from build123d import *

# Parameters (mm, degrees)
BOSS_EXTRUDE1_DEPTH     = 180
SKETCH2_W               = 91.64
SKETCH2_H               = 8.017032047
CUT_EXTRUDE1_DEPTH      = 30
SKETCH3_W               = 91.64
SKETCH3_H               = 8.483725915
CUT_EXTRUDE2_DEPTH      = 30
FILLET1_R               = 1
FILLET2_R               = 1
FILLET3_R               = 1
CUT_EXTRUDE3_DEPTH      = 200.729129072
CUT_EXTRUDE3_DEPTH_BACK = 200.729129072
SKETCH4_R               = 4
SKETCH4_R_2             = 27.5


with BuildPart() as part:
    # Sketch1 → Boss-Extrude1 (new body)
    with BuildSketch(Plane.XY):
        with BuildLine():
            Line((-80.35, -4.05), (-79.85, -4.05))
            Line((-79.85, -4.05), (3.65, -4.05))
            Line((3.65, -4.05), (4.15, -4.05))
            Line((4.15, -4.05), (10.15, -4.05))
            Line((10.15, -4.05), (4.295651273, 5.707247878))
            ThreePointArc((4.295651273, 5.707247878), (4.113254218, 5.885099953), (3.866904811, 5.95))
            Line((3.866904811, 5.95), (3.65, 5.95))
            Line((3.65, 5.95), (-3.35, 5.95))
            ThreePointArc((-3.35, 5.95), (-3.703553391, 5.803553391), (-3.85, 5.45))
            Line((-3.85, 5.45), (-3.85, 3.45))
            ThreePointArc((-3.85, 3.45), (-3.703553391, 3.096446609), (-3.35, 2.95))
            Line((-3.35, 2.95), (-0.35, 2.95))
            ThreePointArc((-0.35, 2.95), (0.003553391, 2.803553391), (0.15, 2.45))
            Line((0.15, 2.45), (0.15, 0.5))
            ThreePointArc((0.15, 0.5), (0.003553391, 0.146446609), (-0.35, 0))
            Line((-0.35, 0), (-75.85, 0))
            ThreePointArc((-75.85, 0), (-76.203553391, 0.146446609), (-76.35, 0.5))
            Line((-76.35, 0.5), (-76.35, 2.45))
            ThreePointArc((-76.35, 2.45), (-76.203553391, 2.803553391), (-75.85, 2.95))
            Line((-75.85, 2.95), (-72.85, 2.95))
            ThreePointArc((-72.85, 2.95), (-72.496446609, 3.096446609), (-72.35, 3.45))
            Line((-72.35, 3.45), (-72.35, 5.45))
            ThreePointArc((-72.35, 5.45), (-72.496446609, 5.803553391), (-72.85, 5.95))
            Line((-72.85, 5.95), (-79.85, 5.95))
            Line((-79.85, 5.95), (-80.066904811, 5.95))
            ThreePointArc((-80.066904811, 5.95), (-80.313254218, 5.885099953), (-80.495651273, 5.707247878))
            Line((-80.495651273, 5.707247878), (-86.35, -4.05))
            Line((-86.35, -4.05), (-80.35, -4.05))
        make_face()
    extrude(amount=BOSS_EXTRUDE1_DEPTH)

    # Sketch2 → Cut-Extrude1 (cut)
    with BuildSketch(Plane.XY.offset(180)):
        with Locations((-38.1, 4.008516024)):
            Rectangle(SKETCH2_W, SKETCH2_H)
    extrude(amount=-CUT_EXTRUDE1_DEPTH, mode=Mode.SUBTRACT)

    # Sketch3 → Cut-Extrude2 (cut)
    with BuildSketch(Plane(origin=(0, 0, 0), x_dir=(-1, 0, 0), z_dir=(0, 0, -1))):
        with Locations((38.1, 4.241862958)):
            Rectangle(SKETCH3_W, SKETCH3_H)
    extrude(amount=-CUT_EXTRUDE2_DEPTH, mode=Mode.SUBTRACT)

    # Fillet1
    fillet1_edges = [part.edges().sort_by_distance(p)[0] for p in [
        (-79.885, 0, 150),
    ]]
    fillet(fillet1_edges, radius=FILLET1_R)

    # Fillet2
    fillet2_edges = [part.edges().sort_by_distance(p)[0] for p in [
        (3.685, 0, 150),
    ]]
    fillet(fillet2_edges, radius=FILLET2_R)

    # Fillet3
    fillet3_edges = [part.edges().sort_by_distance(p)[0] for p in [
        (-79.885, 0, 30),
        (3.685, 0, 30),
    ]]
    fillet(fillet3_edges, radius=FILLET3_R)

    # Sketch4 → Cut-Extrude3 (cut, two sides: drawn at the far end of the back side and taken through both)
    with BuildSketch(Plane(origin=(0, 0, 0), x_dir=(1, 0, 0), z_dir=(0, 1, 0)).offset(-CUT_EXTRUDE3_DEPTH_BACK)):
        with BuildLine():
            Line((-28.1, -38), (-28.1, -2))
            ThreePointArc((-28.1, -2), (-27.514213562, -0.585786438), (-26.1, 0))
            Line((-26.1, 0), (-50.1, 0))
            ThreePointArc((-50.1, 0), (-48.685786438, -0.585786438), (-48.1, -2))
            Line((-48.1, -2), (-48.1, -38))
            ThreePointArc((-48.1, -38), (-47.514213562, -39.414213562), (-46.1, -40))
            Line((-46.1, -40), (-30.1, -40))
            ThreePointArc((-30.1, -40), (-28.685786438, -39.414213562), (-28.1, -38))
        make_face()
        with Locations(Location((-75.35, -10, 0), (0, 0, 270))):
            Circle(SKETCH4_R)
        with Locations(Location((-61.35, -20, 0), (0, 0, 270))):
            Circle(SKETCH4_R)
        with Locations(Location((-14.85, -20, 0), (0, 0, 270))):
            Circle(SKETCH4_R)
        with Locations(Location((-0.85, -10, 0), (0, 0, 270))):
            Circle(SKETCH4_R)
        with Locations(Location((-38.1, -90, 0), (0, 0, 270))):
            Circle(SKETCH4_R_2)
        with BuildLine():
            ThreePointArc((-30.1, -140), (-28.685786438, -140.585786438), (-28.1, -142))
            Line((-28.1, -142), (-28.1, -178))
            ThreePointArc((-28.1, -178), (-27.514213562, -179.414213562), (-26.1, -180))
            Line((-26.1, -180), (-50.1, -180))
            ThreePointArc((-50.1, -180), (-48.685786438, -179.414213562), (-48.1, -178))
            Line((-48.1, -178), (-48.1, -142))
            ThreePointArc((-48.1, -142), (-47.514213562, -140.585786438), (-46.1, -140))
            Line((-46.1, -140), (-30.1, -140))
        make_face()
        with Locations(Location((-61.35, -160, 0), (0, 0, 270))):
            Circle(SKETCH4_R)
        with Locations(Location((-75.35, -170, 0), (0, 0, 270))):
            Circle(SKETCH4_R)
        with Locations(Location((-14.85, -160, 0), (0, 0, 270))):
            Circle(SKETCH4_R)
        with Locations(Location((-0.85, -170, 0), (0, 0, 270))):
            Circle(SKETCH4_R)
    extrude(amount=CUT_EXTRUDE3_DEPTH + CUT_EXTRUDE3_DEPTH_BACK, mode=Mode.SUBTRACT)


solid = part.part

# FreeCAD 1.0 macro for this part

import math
import FreeCAD as App
import Part
import Sketcher
from FreeCAD import Vector


def edges_at(feature, points):
    """Names of the edges that pass closest to the given points."""
    edges = feature.Shape.Edges
    near = lambda p: min(range(len(edges)), key=lambda i: edges[i].distToShape(Part.Vertex(*p))[0])
    return sorted({f"Edge{near(p) + 1}" for p in points})

doc = App.newDocument("Part")
body = doc.addObject("PartDesign::Body", "Body")

sketch1 = body.newObject("Sketcher::SketchObject", "Sketch")
sketch1.AttachmentSupport = (doc.getObject("XY_Plane"), [""])
sketch1.MapMode = "FlatFace"
sketch1.addGeometry(Part.LineSegment(Vector(10.15, -4.05, 0), Vector(4.3, 5.71, 0)), False)
sketch1.addGeometry(Part.ArcOfCircle(Part.Circle(Vector(3.87, 5.45, 0), Vector(0, 0, 1), 0.5), math.radians(31), math.radians(90)), False)
sketch1.addGeometry(Part.LineSegment(Vector(3.87, 5.95, 0), Vector(-3.35, 5.95, 0)), False)
sketch1.addGeometry(Part.ArcOfCircle(Part.Circle(Vector(-3.35, 5.45, 0), Vector(0, 0, 1), 0.5), math.radians(90), math.radians(180)), False)
sketch1.addGeometry(Part.LineSegment(Vector(-3.85, 5.45, 0), Vector(-3.85, 3.45, 0)), False)
sketch1.addGeometry(Part.ArcOfCircle(Part.Circle(Vector(-3.35, 3.45, 0), Vector(0, 0, 1), 0.5), math.radians(180), math.radians(270)), False)
sketch1.addGeometry(Part.LineSegment(Vector(-3.35, 2.95, 0), Vector(-0.35, 2.95, 0)), False)
sketch1.addGeometry(Part.ArcOfCircle(Part.Circle(Vector(-0.35, 2.45, 0), Vector(0, 0, 1), 0.5), math.radians(0), math.radians(90)), False)
sketch1.addGeometry(Part.LineSegment(Vector(0.15, 2.45, 0), Vector(0.15, 0.5, 0)), False)
sketch1.addGeometry(Part.ArcOfCircle(Part.Circle(Vector(-0.35, 0.5, 0), Vector(0, 0, 1), 0.5), math.radians(-90), math.radians(0)), False)
sketch1.addGeometry(Part.LineSegment(Vector(-0.35, 0, 0), Vector(-75.85, 0, 0)), False)
sketch1.addGeometry(Part.ArcOfCircle(Part.Circle(Vector(-75.85, 0.5, 0), Vector(0, 0, 1), 0.5), math.radians(180), math.radians(270)), False)
sketch1.addGeometry(Part.LineSegment(Vector(-76.35, 0.5, 0), Vector(-76.35, 2.45, 0)), False)
sketch1.addGeometry(Part.ArcOfCircle(Part.Circle(Vector(-75.85, 2.45, 0), Vector(0, 0, 1), 0.5), math.radians(90), math.radians(180)), False)
sketch1.addGeometry(Part.LineSegment(Vector(-75.85, 2.95, 0), Vector(-72.85, 2.95, 0)), False)
sketch1.addGeometry(Part.ArcOfCircle(Part.Circle(Vector(-72.85, 3.45, 0), Vector(0, 0, 1), 0.5), math.radians(-90), math.radians(0)), False)
sketch1.addGeometry(Part.LineSegment(Vector(-72.35, 3.45, 0), Vector(-72.35, 5.45, 0)), False)
sketch1.addGeometry(Part.ArcOfCircle(Part.Circle(Vector(-72.85, 5.45, 0), Vector(0, 0, 1), 0.5), math.radians(0), math.radians(90)), False)
sketch1.addGeometry(Part.LineSegment(Vector(-72.85, 5.95, 0), Vector(-80.07, 5.95, 0)), False)
sketch1.addGeometry(Part.ArcOfCircle(Part.Circle(Vector(-80.07, 5.45, 0), Vector(0, 0, 1), 0.5), math.radians(90), math.radians(149)), False)
sketch1.addGeometry(Part.LineSegment(Vector(-80.5, 5.71, 0), Vector(-86.35, -4.05, 0)), False)
sketch1.addGeometry(Part.LineSegment(Vector(-86.35, -4.05, 0), Vector(10.15, -4.05, 0)), False)
sketch1.addConstraint(Sketcher.Constraint("Tangent", 0, 2, 1, 1))
sketch1.addConstraint(Sketcher.Constraint("Tangent", 1, 2, 2, 1))
sketch1.addConstraint(Sketcher.Constraint("Tangent", 2, 2, 3, 1))
sketch1.addConstraint(Sketcher.Constraint("Tangent", 3, 2, 4, 1))
sketch1.addConstraint(Sketcher.Constraint("Tangent", 4, 2, 5, 1))
sketch1.addConstraint(Sketcher.Constraint("Tangent", 5, 2, 6, 1))
sketch1.addConstraint(Sketcher.Constraint("Tangent", 6, 2, 7, 2))
sketch1.addConstraint(Sketcher.Constraint("Tangent", 7, 1, 8, 1))
sketch1.addConstraint(Sketcher.Constraint("Tangent", 8, 2, 9, 2))
sketch1.addConstraint(Sketcher.Constraint("Tangent", 9, 1, 10, 1))
sketch1.addConstraint(Sketcher.Constraint("Tangent", 10, 2, 11, 2))
sketch1.addConstraint(Sketcher.Constraint("Tangent", 11, 1, 12, 1))
sketch1.addConstraint(Sketcher.Constraint("Tangent", 12, 2, 13, 2))
sketch1.addConstraint(Sketcher.Constraint("Tangent", 13, 1, 14, 1))
sketch1.addConstraint(Sketcher.Constraint("Tangent", 14, 2, 15, 1))
sketch1.addConstraint(Sketcher.Constraint("Tangent", 15, 2, 16, 1))
sketch1.addConstraint(Sketcher.Constraint("Tangent", 16, 2, 17, 1))
sketch1.addConstraint(Sketcher.Constraint("Tangent", 17, 2, 18, 1))
sketch1.addConstraint(Sketcher.Constraint("Tangent", 18, 2, 19, 1))
sketch1.addConstraint(Sketcher.Constraint("Tangent", 19, 2, 20, 1))
sketch1.addConstraint(Sketcher.Constraint("Coincident", 20, 2, 21, 1))
sketch1.addConstraint(Sketcher.Constraint("Coincident", 21, 2, 0, 1))
sketch1.addConstraint(Sketcher.Constraint("Horizontal", 2))
sketch1.addConstraint(Sketcher.Constraint("Vertical", 4))
sketch1.addConstraint(Sketcher.Constraint("Horizontal", 6))
sketch1.addConstraint(Sketcher.Constraint("Vertical", 8))
sketch1.addConstraint(Sketcher.Constraint("Horizontal", 10))
sketch1.addConstraint(Sketcher.Constraint("Vertical", 12))
sketch1.addConstraint(Sketcher.Constraint("Horizontal", 14))
sketch1.addConstraint(Sketcher.Constraint("Vertical", 16))
sketch1.addConstraint(Sketcher.Constraint("Horizontal", 18))
sketch1.addConstraint(Sketcher.Constraint("Horizontal", 21))
sketch1.addConstraint(Sketcher.Constraint("Equal", 1, 3))
sketch1.addConstraint(Sketcher.Constraint("Equal", 3, 5))
sketch1.addConstraint(Sketcher.Constraint("Equal", 5, 7))
sketch1.addConstraint(Sketcher.Constraint("Equal", 7, 9))
sketch1.addConstraint(Sketcher.Constraint("Equal", 9, 11))
sketch1.addConstraint(Sketcher.Constraint("Equal", 11, 13))
sketch1.addConstraint(Sketcher.Constraint("Equal", 13, 15))
sketch1.addConstraint(Sketcher.Constraint("Equal", 15, 17))
sketch1.addConstraint(Sketcher.Constraint("Equal", 17, 19))
sketch1.addConstraint(Sketcher.Constraint("PointOnObject", 9, 1, -1))
sketch1.addConstraint(Sketcher.Constraint("Horizontal", 7, 3, 13, 3))
sketch1.addConstraint(Sketcher.Constraint("Horizontal", 3, 3, 17, 3))
sketch1.addConstraint(Sketcher.Constraint("Horizontal", 0, 2, 19, 2))
sketch1.addConstraint(Sketcher.Constraint("Equal", 6, 14))
sketch1.addConstraint(Sketcher.Constraint("Equal", 2, 18))
sketch1.addConstraint(Sketcher.Constraint("Radius", 1, 0.5))
sketch1.addConstraint(Sketcher.Constraint("DistanceX", 6, 1, 6, 2, 3.0))
sketch1.addConstraint(Sketcher.Constraint("DistanceY", 4, 2, 4, 1, 2.0))
sketch1.addConstraint(Sketcher.Constraint("DistanceX", 10, 2, 10, 1, 75.5))
sketch1.addConstraint(Sketcher.Constraint("DistanceX", 21, 1, 21, 2, 96.5))
sketch1.addConstraint(Sketcher.Constraint("DistanceY", 8, 2, 8, 1, 1.95))
sketch1.addConstraint(Sketcher.Constraint("DistanceY", 20, 2, 19, 3, 9.5))
sketch1.addConstraint(Sketcher.Constraint("DistanceX", 3, 3, -1, 1, 3.35))
sketch1.addConstraint(Sketcher.Constraint("Distance", 0, 11.378809))
pad1 = body.newObject("PartDesign::Pad", "Pad")
pad1.Profile = sketch1
pad1.Length = 180

sketch2 = body.newObject("Sketcher::SketchObject", "Sketch001")
sketch2.AttachmentSupport = (doc.getObject("XY_Plane"), [""])
sketch2.MapMode = "FlatFace"
sketch2.AttachmentOffset = App.Placement(Vector(0, 0, 180), App.Rotation())
sketch2.addGeometry(Part.LineSegment(Vector(-84, 8, 0), Vector(-84, 0, 0)), False)
sketch2.addGeometry(Part.LineSegment(Vector(-84, 0, 0), Vector(8, 0, 0)), False)
sketch2.addGeometry(Part.LineSegment(Vector(8, 0, 0), Vector(8, 8, 0)), False)
sketch2.addGeometry(Part.LineSegment(Vector(8, 8, 0), Vector(-84, 8, 0)), False)
sketch2.addConstraint(Sketcher.Constraint("Coincident", 0, 2, 1, 1))
sketch2.addConstraint(Sketcher.Constraint("Coincident", 1, 2, 2, 1))
sketch2.addConstraint(Sketcher.Constraint("Coincident", 2, 2, 3, 1))
sketch2.addConstraint(Sketcher.Constraint("Coincident", 3, 2, 0, 1))
sketch2.addConstraint(Sketcher.Constraint("Vertical", 0))
sketch2.addConstraint(Sketcher.Constraint("Horizontal", 1))
sketch2.addConstraint(Sketcher.Constraint("Vertical", 2))
sketch2.addConstraint(Sketcher.Constraint("Horizontal", 3))
sketch2.addConstraint(Sketcher.Constraint("PointOnObject", 0, 2, -1))
sketch2.addConstraint(Sketcher.Constraint("DistanceX", 1, 1, 1, 2, 91.64))
sketch2.addConstraint(Sketcher.Constraint("DistanceX", 0, 2, -1, 1, 83.92))
sketch2.addConstraint(Sketcher.Constraint("DistanceY", 0, 2, 0, 1, 8.017032))
pocket1 = body.newObject("PartDesign::Pocket", "Pocket")
pocket1.Profile = sketch2
pocket1.Length = 30

sketch3 = body.newObject("Sketcher::SketchObject", "Sketch002")
sketch3.AttachmentSupport = (doc.getObject("XY_Plane"), [""])
sketch3.MapMode = "FlatFace"
sketch3.addGeometry(Part.LineSegment(Vector(8, 8, 0), Vector(8, 0, 0)), False)
sketch3.addGeometry(Part.LineSegment(Vector(8, 0, 0), Vector(-84, 0, 0)), False)
sketch3.addGeometry(Part.LineSegment(Vector(-84, 0, 0), Vector(-84, 8, 0)), False)
sketch3.addGeometry(Part.LineSegment(Vector(-84, 8, 0), Vector(8, 8, 0)), False)
sketch3.addConstraint(Sketcher.Constraint("Coincident", 0, 2, 1, 1))
sketch3.addConstraint(Sketcher.Constraint("Coincident", 1, 2, 2, 1))
sketch3.addConstraint(Sketcher.Constraint("Coincident", 2, 2, 3, 1))
sketch3.addConstraint(Sketcher.Constraint("Coincident", 3, 2, 0, 1))
sketch3.addConstraint(Sketcher.Constraint("Vertical", 0))
sketch3.addConstraint(Sketcher.Constraint("Horizontal", 1))
sketch3.addConstraint(Sketcher.Constraint("Vertical", 2))
sketch3.addConstraint(Sketcher.Constraint("Horizontal", 3))
sketch3.addConstraint(Sketcher.Constraint("PointOnObject", 0, 2, -1))
sketch3.addConstraint(Sketcher.Constraint("DistanceX", 1, 2, 1, 1, 91.64))
sketch3.addConstraint(Sketcher.Constraint("DistanceX", -1, 1, 0, 2, 7.72))
sketch3.addConstraint(Sketcher.Constraint("DistanceY", 0, 2, 0, 1, 8.483726))
pocket2 = body.newObject("PartDesign::Pocket", "Pocket001")
pocket2.Profile = sketch3
pocket2.Length = 30
pocket2.Reversed = True
doc.recompute()

fillet = body.newObject("PartDesign::Fillet", "Fillet")
fillet.Base = (pocket2, edges_at(pocket2, [(-79.885, 0, 150)]))
fillet.Radius = 1
doc.recompute()

fillet2 = body.newObject("PartDesign::Fillet", "Fillet001")
fillet2.Base = (fillet, edges_at(fillet, [(3.685, 0, 150)]))
fillet2.Radius = 1
doc.recompute()

fillet3 = body.newObject("PartDesign::Fillet", "Fillet002")
fillet3.Base = (fillet2, edges_at(fillet2, [(-79.885, 0, 30), (3.685, 0, 30)]))
fillet3.Radius = 1

sketch4 = body.newObject("Sketcher::SketchObject", "Sketch003")
sketch4.AttachmentSupport = (doc.getObject("XZ_Plane"), [""])
sketch4.MapMode = "FlatFace"
sketch4.addGeometry(Part.LineSegment(Vector(-28.1, 38, 0), Vector(-28.1, 2, 0)), False)
sketch4.addGeometry(Part.ArcOfCircle(Part.Circle(Vector(-26.1, 2, 0), Vector(0, 0, 1), 2), math.radians(-180), math.radians(-90)), False)
sketch4.addGeometry(Part.LineSegment(Vector(-26.1, 0, 0), Vector(-50.1, 0, 0)), False)
sketch4.addGeometry(Part.ArcOfCircle(Part.Circle(Vector(-50.1, 2, 0), Vector(0, 0, 1), 2), math.radians(-90), math.radians(0)), False)
sketch4.addGeometry(Part.LineSegment(Vector(-48.1, 2, 0), Vector(-48.1, 38, 0)), False)
sketch4.addGeometry(Part.ArcOfCircle(Part.Circle(Vector(-46.1, 38, 0), Vector(0, 0, 1), 2), math.radians(90), math.radians(180)), False)
sketch4.addGeometry(Part.LineSegment(Vector(-46.1, 40, 0), Vector(-30.1, 40, 0)), False)
sketch4.addGeometry(Part.ArcOfCircle(Part.Circle(Vector(-30.1, 38, 0), Vector(0, 0, 1), 2), math.radians(0), math.radians(90)), False)
sketch4.addGeometry(Part.Circle(Vector(-75.3, 10, 0), Vector(0, 0, 1), 4), False)
sketch4.addGeometry(Part.Circle(Vector(-61.4, 20, 0), Vector(0, 0, 1), 4), False)
sketch4.addGeometry(Part.Circle(Vector(-14.8, 20, 0), Vector(0, 0, 1), 4), False)
sketch4.addGeometry(Part.Circle(Vector(-0.8, 10, 0), Vector(0, 0, 1), 4), False)
sketch4.addGeometry(Part.Circle(Vector(-38.1, 90, 0), Vector(0, 0, 1), 27.5), False)
sketch4.addGeometry(Part.ArcOfCircle(Part.Circle(Vector(-30.1, 142, 0), Vector(0, 0, 1), 2), math.radians(-90), math.radians(0)), False)
sketch4.addGeometry(Part.LineSegment(Vector(-30.1, 140, 0), Vector(-46.1, 140, 0)), False)
sketch4.addGeometry(Part.ArcOfCircle(Part.Circle(Vector(-46.1, 142, 0), Vector(0, 0, 1), 2), math.radians(-180), math.radians(-90)), False)
sketch4.addGeometry(Part.LineSegment(Vector(-48.1, 142, 0), Vector(-48.1, 178, 0)), False)
sketch4.addGeometry(Part.ArcOfCircle(Part.Circle(Vector(-50.1, 178, 0), Vector(0, 0, 1), 2), math.radians(0), math.radians(90)), False)
sketch4.addGeometry(Part.LineSegment(Vector(-50.1, 180, 0), Vector(-26.1, 180, 0)), False)
sketch4.addGeometry(Part.ArcOfCircle(Part.Circle(Vector(-26.1, 178, 0), Vector(0, 0, 1), 2), math.radians(90), math.radians(180)), False)
sketch4.addGeometry(Part.LineSegment(Vector(-28.1, 178, 0), Vector(-28.1, 142, 0)), False)
sketch4.addGeometry(Part.Circle(Vector(-61.4, 160, 0), Vector(0, 0, 1), 4), False)
sketch4.addGeometry(Part.Circle(Vector(-75.3, 170, 0), Vector(0, 0, 1), 4), False)
sketch4.addGeometry(Part.Circle(Vector(-14.8, 160, 0), Vector(0, 0, 1), 4), False)
sketch4.addGeometry(Part.Circle(Vector(-0.8, 170, 0), Vector(0, 0, 1), 4), False)
sketch4.addConstraint(Sketcher.Constraint("Tangent", 0, 2, 1, 1))
sketch4.addConstraint(Sketcher.Constraint("Tangent", 1, 2, 2, 1))
sketch4.addConstraint(Sketcher.Constraint("Tangent", 2, 2, 3, 1))
sketch4.addConstraint(Sketcher.Constraint("Tangent", 3, 2, 4, 1))
sketch4.addConstraint(Sketcher.Constraint("Tangent", 4, 2, 5, 2))
sketch4.addConstraint(Sketcher.Constraint("Tangent", 5, 1, 6, 1))
sketch4.addConstraint(Sketcher.Constraint("Tangent", 6, 2, 7, 2))
sketch4.addConstraint(Sketcher.Constraint("Tangent", 7, 1, 0, 1))
sketch4.addConstraint(Sketcher.Constraint("Tangent", 13, 1, 14, 1))
sketch4.addConstraint(Sketcher.Constraint("Tangent", 14, 2, 15, 2))
sketch4.addConstraint(Sketcher.Constraint("Tangent", 15, 1, 16, 1))
sketch4.addConstraint(Sketcher.Constraint("Tangent", 16, 2, 17, 1))
sketch4.addConstraint(Sketcher.Constraint("Tangent", 17, 2, 18, 1))
sketch4.addConstraint(Sketcher.Constraint("Tangent", 18, 2, 19, 1))
sketch4.addConstraint(Sketcher.Constraint("Tangent", 19, 2, 20, 1))
sketch4.addConstraint(Sketcher.Constraint("Tangent", 20, 2, 13, 2))
sketch4.addConstraint(Sketcher.Constraint("Vertical", 0))
sketch4.addConstraint(Sketcher.Constraint("Horizontal", 2))
sketch4.addConstraint(Sketcher.Constraint("Vertical", 4))
sketch4.addConstraint(Sketcher.Constraint("Horizontal", 6))
sketch4.addConstraint(Sketcher.Constraint("Horizontal", 14))
sketch4.addConstraint(Sketcher.Constraint("Vertical", 16))
sketch4.addConstraint(Sketcher.Constraint("Horizontal", 18))
sketch4.addConstraint(Sketcher.Constraint("Vertical", 20))
sketch4.addConstraint(Sketcher.Constraint("Equal", 1, 3))
sketch4.addConstraint(Sketcher.Constraint("Equal", 3, 5))
sketch4.addConstraint(Sketcher.Constraint("Equal", 5, 7))
sketch4.addConstraint(Sketcher.Constraint("Equal", 8, 9))
sketch4.addConstraint(Sketcher.Constraint("Equal", 9, 10))
sketch4.addConstraint(Sketcher.Constraint("Equal", 10, 11))
sketch4.addConstraint(Sketcher.Constraint("Equal", 7, 13))
sketch4.addConstraint(Sketcher.Constraint("Equal", 13, 15))
sketch4.addConstraint(Sketcher.Constraint("Equal", 15, 17))
sketch4.addConstraint(Sketcher.Constraint("Equal", 17, 19))
sketch4.addConstraint(Sketcher.Constraint("Equal", 11, 21))
sketch4.addConstraint(Sketcher.Constraint("Equal", 21, 22))
sketch4.addConstraint(Sketcher.Constraint("Equal", 22, 23))
sketch4.addConstraint(Sketcher.Constraint("Equal", 23, 24))
sketch4.addConstraint(Sketcher.Constraint("PointOnObject", 1, 2, -1))
sketch4.addConstraint(Sketcher.Constraint("Horizontal", 9, 3, 10, 3))
sketch4.addConstraint(Sketcher.Constraint("Horizontal", 8, 3, 11, 3))
sketch4.addConstraint(Sketcher.Constraint("Horizontal", 21, 3, 23, 3))
sketch4.addConstraint(Sketcher.Constraint("Horizontal", 22, 3, 24, 3))
sketch4.addConstraint(Sketcher.Constraint("Vertical", 7, 3, 13, 3))
sketch4.addConstraint(Sketcher.Constraint("Vertical", 5, 3, 15, 3))
sketch4.addConstraint(Sketcher.Constraint("Vertical", 9, 3, 21, 3))
sketch4.addConstraint(Sketcher.Constraint("Vertical", 8, 3, 22, 3))
sketch4.addConstraint(Sketcher.Constraint("Vertical", 10, 3, 23, 3))
sketch4.addConstraint(Sketcher.Constraint("Vertical", 11, 3, 24, 3))
sketch4.addConstraint(Sketcher.Constraint("Equal", 4, 16))
sketch4.addConstraint(Sketcher.Constraint("Diameter", 8, 8.0))
sketch4.addConstraint(Sketcher.Constraint("Diameter", 12, 55.0))
sketch4.addConstraint(Sketcher.Constraint("Radius", 1, 2.0))
sketch4.addConstraint(Sketcher.Constraint("DistanceX", 2, 2, 2, 1, 24.0))
sketch4.addConstraint(Sketcher.Constraint("DistanceY", 0, 2, 0, 1, 36.0))
sketch4.addConstraint(Sketcher.Constraint("DistanceY", -1, 1, 8, 3, 10.0))
sketch4.addConstraint(Sketcher.Constraint("DistanceY", -1, 1, 9, 3, 20.0))
sketch4.addConstraint(Sketcher.Constraint("DistanceY", -1, 1, 12, 3, 90.0))
sketch4.addConstraint(Sketcher.Constraint("DistanceY", -1, 1, 13, 3, 142.0))
sketch4.addConstraint(Sketcher.Constraint("DistanceY", -1, 1, 21, 3, 160.0))
sketch4.addConstraint(Sketcher.Constraint("DistanceY", -1, 1, 22, 3, 170.0))
sketch4.addConstraint(Sketcher.Constraint("DistanceX", 8, 3, 9, 3, 14.0))
sketch4.addConstraint(Sketcher.Constraint("DistanceX", 10, 3, 11, 3, 14.0))
sketch4.addConstraint(Sketcher.Constraint("DistanceX", 5, 3, 12, 3, 8.0))
sketch4.addConstraint(Sketcher.Constraint("DistanceX", 1, 3, -1, 1, 26.1))
sketch4.addConstraint(Sketcher.Constraint("DistanceX", 9, 3, 10, 3, 46.5))
sketch4.addConstraint(Sketcher.Constraint("DistanceX", 8, 3, -1, 1, 75.35))
pocket3 = body.newObject("PartDesign::Pocket", "Pocket002")
pocket3.Profile = sketch4
pocket3.Type = "ThroughAll"
pocket3.Midplane = True

doc.recompute()
